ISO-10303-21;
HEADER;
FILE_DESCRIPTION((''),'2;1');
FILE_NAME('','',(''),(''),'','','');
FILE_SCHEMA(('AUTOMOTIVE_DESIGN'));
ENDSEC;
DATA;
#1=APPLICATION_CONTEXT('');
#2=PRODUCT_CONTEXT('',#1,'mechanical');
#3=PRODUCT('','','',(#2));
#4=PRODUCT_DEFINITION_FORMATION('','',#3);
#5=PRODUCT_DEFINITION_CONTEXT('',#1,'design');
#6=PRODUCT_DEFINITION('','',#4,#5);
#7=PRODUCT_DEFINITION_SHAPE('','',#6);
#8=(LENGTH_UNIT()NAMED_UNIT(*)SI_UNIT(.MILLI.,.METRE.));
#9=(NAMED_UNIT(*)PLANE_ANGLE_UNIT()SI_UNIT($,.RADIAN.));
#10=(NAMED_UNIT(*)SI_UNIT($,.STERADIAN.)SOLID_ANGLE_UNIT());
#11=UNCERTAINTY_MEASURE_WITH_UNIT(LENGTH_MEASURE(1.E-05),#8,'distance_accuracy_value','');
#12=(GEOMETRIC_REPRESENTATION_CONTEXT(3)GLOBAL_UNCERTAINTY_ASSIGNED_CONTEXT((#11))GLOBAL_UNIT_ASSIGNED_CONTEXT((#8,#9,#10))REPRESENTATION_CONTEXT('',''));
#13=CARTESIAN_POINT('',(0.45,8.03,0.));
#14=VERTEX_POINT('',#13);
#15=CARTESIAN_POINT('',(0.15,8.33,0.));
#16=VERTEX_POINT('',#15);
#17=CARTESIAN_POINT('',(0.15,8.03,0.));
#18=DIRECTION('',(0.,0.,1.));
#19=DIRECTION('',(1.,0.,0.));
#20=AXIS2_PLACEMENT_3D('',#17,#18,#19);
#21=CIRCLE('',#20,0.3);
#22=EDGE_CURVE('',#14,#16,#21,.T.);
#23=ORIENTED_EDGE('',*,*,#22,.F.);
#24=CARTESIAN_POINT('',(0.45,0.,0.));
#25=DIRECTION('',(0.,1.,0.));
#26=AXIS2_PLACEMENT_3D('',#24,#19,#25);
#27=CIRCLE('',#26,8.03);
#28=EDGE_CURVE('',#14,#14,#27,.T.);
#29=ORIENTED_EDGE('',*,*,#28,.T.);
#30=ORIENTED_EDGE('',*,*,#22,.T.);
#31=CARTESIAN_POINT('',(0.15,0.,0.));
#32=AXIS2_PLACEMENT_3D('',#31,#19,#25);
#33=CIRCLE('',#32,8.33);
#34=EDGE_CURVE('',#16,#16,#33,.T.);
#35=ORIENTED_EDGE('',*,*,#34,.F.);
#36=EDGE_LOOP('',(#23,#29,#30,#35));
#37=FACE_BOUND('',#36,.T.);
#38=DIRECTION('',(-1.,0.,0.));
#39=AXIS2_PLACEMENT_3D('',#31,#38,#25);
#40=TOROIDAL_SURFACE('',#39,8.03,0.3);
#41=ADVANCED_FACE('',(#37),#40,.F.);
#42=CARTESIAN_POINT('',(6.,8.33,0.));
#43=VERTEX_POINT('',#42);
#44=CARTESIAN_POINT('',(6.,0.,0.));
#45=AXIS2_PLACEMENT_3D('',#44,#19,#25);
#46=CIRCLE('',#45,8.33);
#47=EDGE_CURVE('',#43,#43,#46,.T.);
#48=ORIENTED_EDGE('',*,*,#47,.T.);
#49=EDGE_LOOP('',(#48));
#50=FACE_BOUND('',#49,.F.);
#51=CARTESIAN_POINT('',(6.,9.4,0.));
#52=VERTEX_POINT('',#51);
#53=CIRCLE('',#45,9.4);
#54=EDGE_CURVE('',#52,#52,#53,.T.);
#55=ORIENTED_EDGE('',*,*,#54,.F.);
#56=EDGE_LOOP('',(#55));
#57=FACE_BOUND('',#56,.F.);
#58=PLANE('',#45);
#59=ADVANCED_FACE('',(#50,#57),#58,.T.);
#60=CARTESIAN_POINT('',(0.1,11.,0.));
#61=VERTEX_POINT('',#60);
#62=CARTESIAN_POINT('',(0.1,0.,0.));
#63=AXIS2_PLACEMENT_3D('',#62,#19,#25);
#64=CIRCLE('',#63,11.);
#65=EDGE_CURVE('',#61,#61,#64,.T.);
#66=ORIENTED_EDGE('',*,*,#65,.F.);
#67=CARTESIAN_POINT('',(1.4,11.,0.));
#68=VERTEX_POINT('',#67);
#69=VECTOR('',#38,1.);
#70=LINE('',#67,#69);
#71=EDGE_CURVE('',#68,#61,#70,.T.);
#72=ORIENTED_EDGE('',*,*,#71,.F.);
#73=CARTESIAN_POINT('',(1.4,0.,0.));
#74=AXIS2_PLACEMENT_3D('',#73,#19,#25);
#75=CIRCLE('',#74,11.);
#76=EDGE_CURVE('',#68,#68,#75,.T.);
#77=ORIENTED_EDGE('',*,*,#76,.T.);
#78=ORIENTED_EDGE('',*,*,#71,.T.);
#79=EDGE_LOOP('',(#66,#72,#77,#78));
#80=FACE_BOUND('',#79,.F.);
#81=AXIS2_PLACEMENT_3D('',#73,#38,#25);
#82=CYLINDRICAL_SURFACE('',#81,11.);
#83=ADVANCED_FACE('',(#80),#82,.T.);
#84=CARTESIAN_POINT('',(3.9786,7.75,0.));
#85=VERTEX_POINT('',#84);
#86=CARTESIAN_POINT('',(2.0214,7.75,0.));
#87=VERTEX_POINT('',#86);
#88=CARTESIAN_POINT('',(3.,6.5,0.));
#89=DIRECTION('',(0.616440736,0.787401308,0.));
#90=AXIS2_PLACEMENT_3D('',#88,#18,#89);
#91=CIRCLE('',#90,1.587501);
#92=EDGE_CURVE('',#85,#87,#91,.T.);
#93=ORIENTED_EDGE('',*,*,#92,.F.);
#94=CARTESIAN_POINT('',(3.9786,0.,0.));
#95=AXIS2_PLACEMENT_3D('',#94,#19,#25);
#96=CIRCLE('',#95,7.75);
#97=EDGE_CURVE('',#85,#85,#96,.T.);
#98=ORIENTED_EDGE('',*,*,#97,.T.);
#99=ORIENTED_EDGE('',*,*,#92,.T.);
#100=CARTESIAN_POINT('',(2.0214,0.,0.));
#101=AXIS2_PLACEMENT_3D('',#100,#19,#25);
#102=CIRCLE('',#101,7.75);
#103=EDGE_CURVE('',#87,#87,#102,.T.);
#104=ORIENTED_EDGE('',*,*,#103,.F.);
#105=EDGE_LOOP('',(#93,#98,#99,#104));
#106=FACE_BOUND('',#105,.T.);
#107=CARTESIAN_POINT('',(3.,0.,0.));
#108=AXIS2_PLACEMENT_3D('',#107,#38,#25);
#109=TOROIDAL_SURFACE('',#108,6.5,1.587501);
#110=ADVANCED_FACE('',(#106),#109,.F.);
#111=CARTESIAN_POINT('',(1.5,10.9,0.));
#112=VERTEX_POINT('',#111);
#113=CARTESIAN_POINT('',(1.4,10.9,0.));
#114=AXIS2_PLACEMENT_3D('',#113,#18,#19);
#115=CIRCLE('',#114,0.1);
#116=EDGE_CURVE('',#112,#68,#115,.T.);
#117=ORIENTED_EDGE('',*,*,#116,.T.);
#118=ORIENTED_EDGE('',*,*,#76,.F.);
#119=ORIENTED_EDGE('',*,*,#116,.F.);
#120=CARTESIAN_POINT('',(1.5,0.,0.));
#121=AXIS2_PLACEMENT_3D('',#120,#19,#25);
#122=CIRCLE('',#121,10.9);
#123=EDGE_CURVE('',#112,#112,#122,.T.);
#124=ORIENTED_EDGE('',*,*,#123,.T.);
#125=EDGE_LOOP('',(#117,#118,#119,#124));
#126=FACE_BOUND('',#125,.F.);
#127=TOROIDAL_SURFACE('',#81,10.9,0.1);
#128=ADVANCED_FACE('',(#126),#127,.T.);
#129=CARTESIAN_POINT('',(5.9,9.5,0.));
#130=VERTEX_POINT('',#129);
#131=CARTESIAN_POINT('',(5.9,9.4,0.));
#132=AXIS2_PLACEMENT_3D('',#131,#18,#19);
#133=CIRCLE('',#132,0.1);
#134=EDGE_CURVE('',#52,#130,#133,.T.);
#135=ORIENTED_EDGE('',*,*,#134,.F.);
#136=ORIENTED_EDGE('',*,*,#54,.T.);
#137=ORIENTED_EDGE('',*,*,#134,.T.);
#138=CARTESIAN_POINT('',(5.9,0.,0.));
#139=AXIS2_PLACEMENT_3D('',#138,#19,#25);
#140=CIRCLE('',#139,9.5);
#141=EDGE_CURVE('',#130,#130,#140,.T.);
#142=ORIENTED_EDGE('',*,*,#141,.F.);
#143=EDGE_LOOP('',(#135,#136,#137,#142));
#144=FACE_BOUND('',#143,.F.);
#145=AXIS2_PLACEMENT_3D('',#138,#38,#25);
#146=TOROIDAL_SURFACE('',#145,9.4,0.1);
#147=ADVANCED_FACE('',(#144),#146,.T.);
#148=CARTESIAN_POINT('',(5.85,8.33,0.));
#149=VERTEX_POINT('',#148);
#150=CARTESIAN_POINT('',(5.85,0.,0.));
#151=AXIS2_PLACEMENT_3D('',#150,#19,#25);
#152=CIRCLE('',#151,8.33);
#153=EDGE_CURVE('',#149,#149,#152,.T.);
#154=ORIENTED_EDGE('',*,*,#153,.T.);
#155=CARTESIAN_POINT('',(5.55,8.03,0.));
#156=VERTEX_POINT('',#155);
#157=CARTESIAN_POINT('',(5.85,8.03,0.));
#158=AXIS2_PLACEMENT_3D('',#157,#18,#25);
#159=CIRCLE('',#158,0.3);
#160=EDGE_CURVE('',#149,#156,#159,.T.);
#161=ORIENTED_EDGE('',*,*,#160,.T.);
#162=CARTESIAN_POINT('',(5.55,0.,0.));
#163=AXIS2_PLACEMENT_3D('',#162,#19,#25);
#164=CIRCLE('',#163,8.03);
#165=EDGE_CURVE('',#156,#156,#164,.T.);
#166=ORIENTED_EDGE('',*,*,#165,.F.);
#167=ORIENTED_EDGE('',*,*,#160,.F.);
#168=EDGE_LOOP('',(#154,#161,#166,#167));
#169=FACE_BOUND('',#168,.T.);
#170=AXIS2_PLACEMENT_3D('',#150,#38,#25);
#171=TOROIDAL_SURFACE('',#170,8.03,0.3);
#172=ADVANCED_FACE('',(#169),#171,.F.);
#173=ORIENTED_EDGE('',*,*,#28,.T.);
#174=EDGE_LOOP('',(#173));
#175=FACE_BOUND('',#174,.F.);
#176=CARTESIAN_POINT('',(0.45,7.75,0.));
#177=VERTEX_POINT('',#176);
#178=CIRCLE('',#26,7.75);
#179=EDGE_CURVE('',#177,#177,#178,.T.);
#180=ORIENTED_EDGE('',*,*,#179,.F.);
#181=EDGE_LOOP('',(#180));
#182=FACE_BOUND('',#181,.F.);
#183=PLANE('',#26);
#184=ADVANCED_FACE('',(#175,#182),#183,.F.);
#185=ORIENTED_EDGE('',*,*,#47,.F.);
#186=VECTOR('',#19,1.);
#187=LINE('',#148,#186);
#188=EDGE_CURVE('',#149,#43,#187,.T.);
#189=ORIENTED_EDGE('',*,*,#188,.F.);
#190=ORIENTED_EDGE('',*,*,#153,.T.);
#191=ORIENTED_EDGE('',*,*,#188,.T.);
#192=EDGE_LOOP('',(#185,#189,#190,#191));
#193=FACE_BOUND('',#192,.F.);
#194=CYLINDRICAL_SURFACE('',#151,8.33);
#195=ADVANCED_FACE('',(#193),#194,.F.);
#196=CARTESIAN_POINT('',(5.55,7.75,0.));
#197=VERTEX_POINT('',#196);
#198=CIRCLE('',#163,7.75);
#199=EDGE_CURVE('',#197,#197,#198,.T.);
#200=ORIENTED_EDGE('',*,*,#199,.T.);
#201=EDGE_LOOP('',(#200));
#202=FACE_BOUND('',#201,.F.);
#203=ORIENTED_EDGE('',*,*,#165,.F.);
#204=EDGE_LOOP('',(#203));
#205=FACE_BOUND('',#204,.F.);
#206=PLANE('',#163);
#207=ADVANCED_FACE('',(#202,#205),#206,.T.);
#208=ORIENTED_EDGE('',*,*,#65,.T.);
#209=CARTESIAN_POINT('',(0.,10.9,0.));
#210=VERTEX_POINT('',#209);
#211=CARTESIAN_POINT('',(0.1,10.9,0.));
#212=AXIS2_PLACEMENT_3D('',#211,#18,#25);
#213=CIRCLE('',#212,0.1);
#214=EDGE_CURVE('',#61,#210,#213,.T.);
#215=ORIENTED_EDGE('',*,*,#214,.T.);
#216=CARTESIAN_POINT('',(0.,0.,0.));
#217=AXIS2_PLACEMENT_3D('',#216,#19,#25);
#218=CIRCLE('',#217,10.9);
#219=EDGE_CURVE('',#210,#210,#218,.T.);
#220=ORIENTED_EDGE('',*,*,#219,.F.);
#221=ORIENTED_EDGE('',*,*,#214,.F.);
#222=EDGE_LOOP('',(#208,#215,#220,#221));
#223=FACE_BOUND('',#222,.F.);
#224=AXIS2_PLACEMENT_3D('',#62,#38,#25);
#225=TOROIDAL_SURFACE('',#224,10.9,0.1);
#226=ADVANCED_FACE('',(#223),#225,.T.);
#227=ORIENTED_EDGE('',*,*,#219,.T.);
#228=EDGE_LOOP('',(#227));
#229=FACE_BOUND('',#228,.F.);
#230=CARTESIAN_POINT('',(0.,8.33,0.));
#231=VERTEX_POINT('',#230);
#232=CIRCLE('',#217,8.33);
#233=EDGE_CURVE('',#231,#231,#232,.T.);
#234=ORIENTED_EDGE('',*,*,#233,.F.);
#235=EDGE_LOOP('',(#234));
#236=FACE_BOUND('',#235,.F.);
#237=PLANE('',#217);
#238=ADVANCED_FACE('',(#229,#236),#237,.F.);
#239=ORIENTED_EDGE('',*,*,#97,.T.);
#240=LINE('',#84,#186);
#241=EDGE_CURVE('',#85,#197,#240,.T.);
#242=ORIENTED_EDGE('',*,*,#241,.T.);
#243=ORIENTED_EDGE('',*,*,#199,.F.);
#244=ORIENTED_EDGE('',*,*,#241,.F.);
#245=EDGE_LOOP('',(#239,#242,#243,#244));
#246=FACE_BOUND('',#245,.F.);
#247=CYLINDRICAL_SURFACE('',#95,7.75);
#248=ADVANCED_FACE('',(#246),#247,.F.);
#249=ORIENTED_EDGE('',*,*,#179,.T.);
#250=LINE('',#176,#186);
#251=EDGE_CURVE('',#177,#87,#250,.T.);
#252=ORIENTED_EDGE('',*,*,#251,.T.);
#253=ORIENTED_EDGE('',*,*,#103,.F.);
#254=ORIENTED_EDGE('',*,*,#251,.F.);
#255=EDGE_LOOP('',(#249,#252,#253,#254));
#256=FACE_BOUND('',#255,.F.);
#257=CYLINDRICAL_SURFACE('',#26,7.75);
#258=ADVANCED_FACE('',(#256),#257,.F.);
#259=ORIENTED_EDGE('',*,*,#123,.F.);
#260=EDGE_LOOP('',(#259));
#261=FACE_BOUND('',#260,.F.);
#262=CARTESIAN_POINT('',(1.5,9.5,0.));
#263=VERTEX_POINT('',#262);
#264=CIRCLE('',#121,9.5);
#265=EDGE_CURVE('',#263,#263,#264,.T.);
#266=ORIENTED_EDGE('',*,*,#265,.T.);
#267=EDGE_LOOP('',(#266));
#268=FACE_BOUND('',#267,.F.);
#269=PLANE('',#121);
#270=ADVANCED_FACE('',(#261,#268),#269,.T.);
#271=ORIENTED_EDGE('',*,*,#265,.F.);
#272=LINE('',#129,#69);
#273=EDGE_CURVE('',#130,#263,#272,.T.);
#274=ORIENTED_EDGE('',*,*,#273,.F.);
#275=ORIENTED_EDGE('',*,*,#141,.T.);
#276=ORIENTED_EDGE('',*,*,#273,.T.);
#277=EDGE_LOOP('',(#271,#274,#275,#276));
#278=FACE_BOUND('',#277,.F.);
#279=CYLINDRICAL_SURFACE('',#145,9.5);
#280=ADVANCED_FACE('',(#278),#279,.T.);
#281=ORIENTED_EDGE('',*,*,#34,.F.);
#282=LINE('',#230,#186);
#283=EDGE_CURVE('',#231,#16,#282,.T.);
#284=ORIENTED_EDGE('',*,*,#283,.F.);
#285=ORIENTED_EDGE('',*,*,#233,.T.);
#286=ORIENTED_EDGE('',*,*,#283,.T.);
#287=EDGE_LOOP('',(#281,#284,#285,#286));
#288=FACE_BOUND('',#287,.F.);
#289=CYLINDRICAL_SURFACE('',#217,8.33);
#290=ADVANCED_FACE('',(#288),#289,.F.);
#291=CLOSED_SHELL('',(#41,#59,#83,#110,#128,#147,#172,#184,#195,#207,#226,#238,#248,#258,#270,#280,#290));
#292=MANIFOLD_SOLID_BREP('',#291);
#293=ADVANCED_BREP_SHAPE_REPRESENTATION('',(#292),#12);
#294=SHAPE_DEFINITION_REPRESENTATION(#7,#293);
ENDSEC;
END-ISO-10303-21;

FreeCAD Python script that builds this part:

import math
import FreeCAD as App
import Part
import Sketcher

V = App.Vector

doc = App.newDocument("Part")
params = doc.addObject("Spreadsheet::Sheet", "Params")
for row, (alias, value) in enumerate([
    ("sketch1_radius", "0.1 mm"),
    ("sketch1_radius2", "0.3 mm"),
    ("sketch1_width", "4.4 mm"),
    ("sketch1_width2", "1.3 mm"),
    ("sketch1_height", "1.4 mm"),
    ("revolution_angle", "360 deg"),
], start=1):
    params.set(f"A{row}", alias)
    params.set(f"B{row}", "=" + value)
    params.setAlias(f"B{row}", alias)

body = doc.addObject("PartDesign::Body", "Body")

# Sketch on XY plane
sketch1 = body.newObject("Sketcher::SketchObject", "Sketch")
sketch1.AttachmentSupport = (doc.getObject("XY_Plane"), [""])
sketch1.MapMode = "FlatFace"
sketch1.addGeometry(Part.ArcOfCircle(Part.Circle(V(0.1, 10.9, 0), V(0, 0, 1), 0.1), math.radians(90), math.radians(180)), False)
sketch1.addGeometry(Part.LineSegment(V(0, 10.9, 0), V(0, 8.33, 0)), False)
sketch1.addGeometry(Part.LineSegment(V(0, 8.33, 0), V(0.15, 8.33, 0)), False)
sketch1.addGeometry(Part.ArcOfCircle(Part.Circle(V(0.15, 8.03, 0), V(0, 0, 1), 0.3), math.radians(0), math.radians(90)), False)
sketch1.addGeometry(Part.LineSegment(V(0.45, 8.03, 0), V(0.45, 7.75, 0)), False)
sketch1.addGeometry(Part.LineSegment(V(0.45, 7.75, 0), V(2.02, 7.75, 0)), False)
sketch1.addGeometry(Part.ArcOfCircle(Part.Circle(V(3, 6.5, 0), V(0, 0, 1), 1.59), math.radians(52), math.radians(128)), False)
sketch1.addGeometry(Part.LineSegment(V(3.98, 7.75, 0), V(5.55, 7.75, 0)), False)
sketch1.addGeometry(Part.LineSegment(V(5.55, 7.75, 0), V(5.55, 8.03, 0)), False)
sketch1.addGeometry(Part.ArcOfCircle(Part.Circle(V(5.85, 8.03, 0), V(0, 0, 1), 0.3), math.radians(90), math.radians(180)), False)
sketch1.addGeometry(Part.LineSegment(V(5.85, 8.33, 0), V(6, 8.33, 0)), False)
sketch1.addGeometry(Part.LineSegment(V(6, 8.33, 0), V(6, 9.4, 0)), False)
sketch1.addGeometry(Part.ArcOfCircle(Part.Circle(V(5.9, 9.4, 0), V(0, 0, 1), 0.1), math.radians(0), math.radians(90)), False)
sketch1.addGeometry(Part.LineSegment(V(5.9, 9.5, 0), V(1.5, 9.5, 0)), False)
sketch1.addGeometry(Part.LineSegment(V(1.5, 9.5, 0), V(1.5, 10.9, 0)), False)
sketch1.addGeometry(Part.ArcOfCircle(Part.Circle(V(1.4, 10.9, 0), V(0, 0, 1), 0.1), math.radians(0), math.radians(90)), False)
sketch1.addGeometry(Part.LineSegment(V(1.4, 11, 0), V(0.1, 11, 0)), False)
sketch1.addConstraint(Sketcher.Constraint("Tangent", 0, 2, 1, 1))
sketch1.addConstraint(Sketcher.Constraint("Coincident", 1, 2, 2, 1))
sketch1.addConstraint(Sketcher.Constraint("Tangent", 2, 2, 3, 2))
sketch1.addConstraint(Sketcher.Constraint("Tangent", 3, 1, 4, 1))
sketch1.addConstraint(Sketcher.Constraint("Coincident", 4, 2, 5, 1))
sketch1.addConstraint(Sketcher.Constraint("Coincident", 5, 2, 6, 2))
sketch1.addConstraint(Sketcher.Constraint("Coincident", 6, 1, 7, 1))
sketch1.addConstraint(Sketcher.Constraint("Coincident", 7, 2, 8, 1))
sketch1.addConstraint(Sketcher.Constraint("Tangent", 8, 2, 9, 2))
sketch1.addConstraint(Sketcher.Constraint("Tangent", 9, 1, 10, 1))
sketch1.addConstraint(Sketcher.Constraint("Coincident", 10, 2, 11, 1))
sketch1.addConstraint(Sketcher.Constraint("Tangent", 11, 2, 12, 1))
sketch1.addConstraint(Sketcher.Constraint("Tangent", 12, 2, 13, 1))
sketch1.addConstraint(Sketcher.Constraint("Coincident", 13, 2, 14, 1))
sketch1.addConstraint(Sketcher.Constraint("Tangent", 14, 2, 15, 1))
sketch1.addConstraint(Sketcher.Constraint("Tangent", 15, 2, 16, 1))
sketch1.addConstraint(Sketcher.Constraint("Tangent", 16, 2, 0, 1))
sketch1.addConstraint(Sketcher.Constraint("Vertical", 1))
sketch1.addConstraint(Sketcher.Constraint("Horizontal", 2))
sketch1.addConstraint(Sketcher.Constraint("Vertical", 4))
sketch1.addConstraint(Sketcher.Constraint("Horizontal", 5))
sketch1.addConstraint(Sketcher.Constraint("Horizontal", 7))
sketch1.addConstraint(Sketcher.Constraint("Vertical", 8))
sketch1.addConstraint(Sketcher.Constraint("Horizontal", 10))
sketch1.addConstraint(Sketcher.Constraint("Vertical", 11))
sketch1.addConstraint(Sketcher.Constraint("Horizontal", 13))
sketch1.addConstraint(Sketcher.Constraint("Vertical", 14))
sketch1.addConstraint(Sketcher.Constraint("Horizontal", 16))
sketch1.addConstraint(Sketcher.Constraint("Equal", 3, 9))
sketch1.addConstraint(Sketcher.Constraint("Equal", 0, 12))
sketch1.addConstraint(Sketcher.Constraint("Equal", 12, 15))
sketch1.addConstraint(Sketcher.Constraint("PointOnObject", 0, 2, -2))
sketch1.addConstraint(Sketcher.Constraint("Horizontal", 3, 3, 9, 3))
sketch1.addConstraint(Sketcher.Constraint("Horizontal", 5, 2, 6, 1))
sketch1.addConstraint(Sketcher.Constraint("Equal", 5, 7))
sketch1.addConstraint(Sketcher.Constraint("Equal", 2, 10))
sketch1.addConstraint(Sketcher.Constraint("Radius", 0, 0.1))
sketch1.addConstraint(Sketcher.Constraint("Radius", 3, 0.3))
sketch1.addConstraint(Sketcher.Constraint("DistanceX", 13, 2, 13, 1, 4.4))
sketch1.addConstraint(Sketcher.Constraint("DistanceX", 16, 2, 16, 1, 1.3))
sketch1.addConstraint(Sketcher.Constraint("DistanceY", 14, 1, 14, 2, 1.4))
sketch1.addConstraint(Sketcher.Constraint("DistanceY", -1, 1, 15, 2, 11.0))
sketch1.addConstraint(Sketcher.Constraint("DistanceX", 2, 1, 2, 2, 0.15))
sketch1.addConstraint(Sketcher.Constraint("DistanceY", 1, 2, 1, 1, 2.57))
sketch1.addConstraint(Sketcher.Constraint("DistanceY", 4, 2, 4, 1, 0.28))
sketch1.addConstraint(Sketcher.Constraint("DistanceY", -1, 1, 6, 3, 6.5))
sketch1.addConstraint(Sketcher.Constraint("Radius", 6, 1.5875))
sketch1.setExpression("Constraints[36]", "Params.sketch1_radius")
sketch1.setExpression("Constraints[37]", "Params.sketch1_radius2")
sketch1.setExpression("Constraints[38]", "Params.sketch1_width")
sketch1.setExpression("Constraints[39]", "Params.sketch1_width2")
sketch1.setExpression("Constraints[40]", "Params.sketch1_height")
revolution = body.newObject("PartDesign::Revolution", "Revolution")
revolution.Profile = sketch1
revolution.ReferenceAxis = (sketch1, ["H_Axis"])
revolution.setExpression("Angle", "Params.revolution_angle")

doc.recompute()
